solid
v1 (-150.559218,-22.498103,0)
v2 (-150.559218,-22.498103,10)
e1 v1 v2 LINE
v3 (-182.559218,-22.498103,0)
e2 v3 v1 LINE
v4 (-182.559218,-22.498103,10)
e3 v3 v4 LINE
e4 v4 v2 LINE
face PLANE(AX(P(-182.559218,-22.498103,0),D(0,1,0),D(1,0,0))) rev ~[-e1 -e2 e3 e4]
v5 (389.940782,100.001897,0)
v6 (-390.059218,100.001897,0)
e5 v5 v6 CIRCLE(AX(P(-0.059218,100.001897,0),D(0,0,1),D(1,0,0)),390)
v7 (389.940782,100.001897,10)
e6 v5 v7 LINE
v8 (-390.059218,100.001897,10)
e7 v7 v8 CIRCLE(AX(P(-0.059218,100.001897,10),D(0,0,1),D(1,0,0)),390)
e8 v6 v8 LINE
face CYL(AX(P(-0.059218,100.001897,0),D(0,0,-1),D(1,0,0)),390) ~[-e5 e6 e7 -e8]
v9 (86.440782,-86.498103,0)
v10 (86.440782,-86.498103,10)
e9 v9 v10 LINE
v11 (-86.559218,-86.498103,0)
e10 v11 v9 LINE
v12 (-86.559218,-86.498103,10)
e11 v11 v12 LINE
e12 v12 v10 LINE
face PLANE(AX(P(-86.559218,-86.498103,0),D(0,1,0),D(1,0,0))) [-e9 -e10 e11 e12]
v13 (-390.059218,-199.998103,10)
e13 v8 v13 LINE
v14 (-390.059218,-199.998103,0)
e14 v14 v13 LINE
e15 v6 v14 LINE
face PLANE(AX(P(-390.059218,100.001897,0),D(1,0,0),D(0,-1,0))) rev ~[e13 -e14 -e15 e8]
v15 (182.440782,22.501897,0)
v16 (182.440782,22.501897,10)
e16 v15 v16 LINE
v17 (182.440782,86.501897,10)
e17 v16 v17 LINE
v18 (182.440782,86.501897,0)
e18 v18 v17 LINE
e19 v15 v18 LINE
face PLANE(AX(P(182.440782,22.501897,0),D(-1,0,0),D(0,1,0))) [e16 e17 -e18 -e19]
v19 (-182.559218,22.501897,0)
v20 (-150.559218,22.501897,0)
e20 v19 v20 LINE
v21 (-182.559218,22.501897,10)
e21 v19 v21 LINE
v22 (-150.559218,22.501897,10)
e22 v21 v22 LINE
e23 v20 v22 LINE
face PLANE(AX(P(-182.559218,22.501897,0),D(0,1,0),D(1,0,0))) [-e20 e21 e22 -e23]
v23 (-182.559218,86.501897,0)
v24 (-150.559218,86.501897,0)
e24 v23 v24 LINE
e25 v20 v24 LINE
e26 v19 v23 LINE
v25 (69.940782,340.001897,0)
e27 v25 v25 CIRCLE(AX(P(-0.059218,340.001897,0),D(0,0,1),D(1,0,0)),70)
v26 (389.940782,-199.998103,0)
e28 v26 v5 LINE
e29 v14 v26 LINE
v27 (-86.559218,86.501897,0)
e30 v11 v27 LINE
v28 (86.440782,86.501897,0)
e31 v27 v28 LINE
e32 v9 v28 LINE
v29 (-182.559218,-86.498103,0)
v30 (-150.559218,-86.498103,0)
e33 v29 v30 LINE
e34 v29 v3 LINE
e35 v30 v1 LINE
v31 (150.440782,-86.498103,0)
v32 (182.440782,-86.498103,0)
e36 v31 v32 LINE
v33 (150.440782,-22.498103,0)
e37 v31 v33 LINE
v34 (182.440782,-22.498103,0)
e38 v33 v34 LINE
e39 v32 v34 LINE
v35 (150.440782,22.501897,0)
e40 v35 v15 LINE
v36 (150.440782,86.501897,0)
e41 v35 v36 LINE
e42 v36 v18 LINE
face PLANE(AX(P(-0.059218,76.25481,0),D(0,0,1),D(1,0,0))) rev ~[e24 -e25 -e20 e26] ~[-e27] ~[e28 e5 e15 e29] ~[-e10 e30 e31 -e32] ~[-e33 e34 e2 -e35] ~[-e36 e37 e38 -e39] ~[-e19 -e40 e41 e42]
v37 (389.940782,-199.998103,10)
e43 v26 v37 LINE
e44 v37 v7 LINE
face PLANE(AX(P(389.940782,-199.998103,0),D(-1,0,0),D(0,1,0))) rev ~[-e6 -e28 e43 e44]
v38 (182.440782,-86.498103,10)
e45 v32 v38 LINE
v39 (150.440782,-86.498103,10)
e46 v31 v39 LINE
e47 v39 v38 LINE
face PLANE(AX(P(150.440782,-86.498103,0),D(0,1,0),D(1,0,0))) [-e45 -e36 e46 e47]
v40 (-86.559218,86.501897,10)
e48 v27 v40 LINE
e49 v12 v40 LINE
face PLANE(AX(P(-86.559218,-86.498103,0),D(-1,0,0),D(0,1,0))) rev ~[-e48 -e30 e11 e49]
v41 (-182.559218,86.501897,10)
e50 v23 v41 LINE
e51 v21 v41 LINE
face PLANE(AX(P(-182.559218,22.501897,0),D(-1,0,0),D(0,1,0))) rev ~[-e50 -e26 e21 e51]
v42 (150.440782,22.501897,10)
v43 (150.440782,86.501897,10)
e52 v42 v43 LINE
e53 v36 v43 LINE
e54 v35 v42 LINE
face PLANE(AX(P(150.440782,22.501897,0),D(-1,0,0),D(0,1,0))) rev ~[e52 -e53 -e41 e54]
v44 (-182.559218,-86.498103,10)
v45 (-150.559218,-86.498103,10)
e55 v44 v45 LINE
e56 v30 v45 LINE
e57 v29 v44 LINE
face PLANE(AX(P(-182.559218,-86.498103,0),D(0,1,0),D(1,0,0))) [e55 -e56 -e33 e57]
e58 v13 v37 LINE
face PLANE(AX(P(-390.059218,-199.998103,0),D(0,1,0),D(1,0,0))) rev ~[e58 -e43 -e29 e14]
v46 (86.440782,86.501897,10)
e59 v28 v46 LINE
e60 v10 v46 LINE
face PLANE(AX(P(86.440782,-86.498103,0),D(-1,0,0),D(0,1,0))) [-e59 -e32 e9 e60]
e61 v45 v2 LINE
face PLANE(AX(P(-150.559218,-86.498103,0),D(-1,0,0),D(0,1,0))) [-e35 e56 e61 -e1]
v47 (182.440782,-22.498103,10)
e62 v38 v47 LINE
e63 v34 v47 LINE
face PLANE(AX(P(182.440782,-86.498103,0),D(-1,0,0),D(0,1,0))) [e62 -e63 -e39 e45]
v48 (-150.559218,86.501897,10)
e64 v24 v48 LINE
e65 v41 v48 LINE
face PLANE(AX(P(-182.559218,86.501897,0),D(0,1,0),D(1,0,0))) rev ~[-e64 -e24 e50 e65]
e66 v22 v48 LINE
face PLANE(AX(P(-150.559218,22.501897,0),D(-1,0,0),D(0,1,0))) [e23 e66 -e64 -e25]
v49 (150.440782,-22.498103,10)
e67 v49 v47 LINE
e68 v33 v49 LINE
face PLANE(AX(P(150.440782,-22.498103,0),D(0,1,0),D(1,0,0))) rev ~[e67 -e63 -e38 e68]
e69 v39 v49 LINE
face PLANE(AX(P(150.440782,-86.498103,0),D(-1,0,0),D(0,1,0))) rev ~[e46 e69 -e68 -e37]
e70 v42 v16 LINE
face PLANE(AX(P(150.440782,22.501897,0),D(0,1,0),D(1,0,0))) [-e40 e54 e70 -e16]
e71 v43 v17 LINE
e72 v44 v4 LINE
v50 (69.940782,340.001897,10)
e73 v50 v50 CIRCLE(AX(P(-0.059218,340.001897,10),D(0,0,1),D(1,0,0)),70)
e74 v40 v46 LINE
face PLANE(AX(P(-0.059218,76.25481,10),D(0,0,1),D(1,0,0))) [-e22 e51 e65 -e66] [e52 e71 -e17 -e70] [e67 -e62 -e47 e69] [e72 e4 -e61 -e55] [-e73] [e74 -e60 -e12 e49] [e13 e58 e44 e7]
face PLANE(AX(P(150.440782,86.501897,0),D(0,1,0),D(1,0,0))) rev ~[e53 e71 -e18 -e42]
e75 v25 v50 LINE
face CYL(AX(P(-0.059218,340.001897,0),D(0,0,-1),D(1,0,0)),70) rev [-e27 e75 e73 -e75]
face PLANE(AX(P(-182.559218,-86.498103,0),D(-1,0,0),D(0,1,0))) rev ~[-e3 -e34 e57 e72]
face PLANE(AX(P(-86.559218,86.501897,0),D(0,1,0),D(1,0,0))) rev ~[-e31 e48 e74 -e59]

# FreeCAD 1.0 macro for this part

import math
import FreeCAD as App
import Part
import Sketcher


def add_polygon(sketch, points):
    """Adds a closed chain of lines whose ends are joined by coincident constraints."""
    first, n = sketch.GeometryCount, len(points)
    for a, b in zip(points, points[1:] + points[:1]):
        sketch.addGeometry(Part.LineSegment(App.Vector(*a, 0), App.Vector(*b, 0)), False)
    for i in range(n):
        sketch.addConstraint(Sketcher.Constraint("Coincident", first + i, 2, first + (i + 1) % n, 1))

doc = App.newDocument("Part")
body = doc.addObject("PartDesign::Body", "Body")

# Sketch on XY plane
sketch1 = body.newObject("Sketcher::SketchObject", "Sketch")
sketch1.AttachmentSupport = (doc.getObject("XY_Plane"), [""])
sketch1.MapMode = "FlatFace"
sketch1.addGeometry(Part.LineSegment(App.Vector(-390, 100, 0), App.Vector(-390, -200, 0)), False)  # 0
sketch1.addGeometry(Part.LineSegment(App.Vector(-390, -200, 0), App.Vector(390, -200, 0)), False)  # 1
sketch1.addGeometry(Part.LineSegment(App.Vector(390, -200, 0), App.Vector(390, 100, 0)), False)  # 2
sketch1.addGeometry(Part.ArcOfCircle(Part.Circle(App.Vector(0, 100, 0), App.Vector(0, 0, 1), 390), math.radians(0), math.radians(180)), False)  # 3
add_polygon(sketch1, [(-151, -86), (-183, -86), (-183, -22), (-151, -22)])  # lines 4-7
add_polygon(sketch1, [(-151, 23), (-183, 23), (-183, 87), (-151, 87)])  # lines 8-11
add_polygon(sketch1, [(86, -86), (-87, -86), (-87, 87), (86, 87)])  # lines 12-15
add_polygon(sketch1, [(182, -86), (150, -86), (150, -22), (182, -22)])  # lines 16-19
add_polygon(sketch1, [(182, 23), (150, 23), (150, 87), (182, 87)])  # lines 20-23
sketch1.addGeometry(Part.Circle(App.Vector(0, 340, 0), App.Vector(0, 0, 1), 70), False)  # 24
sketch1.addConstraint([
    Sketcher.Constraint("Coincident", 0, 2, 1, 1),
    Sketcher.Constraint("Coincident", 1, 2, 2, 1),
    Sketcher.Constraint("Tangent", 2, 2, 3, 1),
    Sketcher.Constraint("Tangent", 3, 2, 0, 1),
    Sketcher.Constraint("Vertical", 0),
    Sketcher.Constraint("Horizontal", 1),
    Sketcher.Constraint("Vertical", 2),
    Sketcher.Constraint("Horizontal", 4),
    Sketcher.Constraint("Vertical", 5),
    Sketcher.Constraint("Horizontal", 6),
    Sketcher.Constraint("Vertical", 7),
    Sketcher.Constraint("Horizontal", 8),
    Sketcher.Constraint("Vertical", 9),
    Sketcher.Constraint("Horizontal", 10),
    Sketcher.Constraint("Vertical", 11),
    Sketcher.Constraint("Horizontal", 12),
    Sketcher.Constraint("Vertical", 13),
    Sketcher.Constraint("Horizontal", 14),
    Sketcher.Constraint("Vertical", 15),
    Sketcher.Constraint("Horizontal", 16),
    Sketcher.Constraint("Vertical", 17),
    Sketcher.Constraint("Horizontal", 18),
    Sketcher.Constraint("Vertical", 19),
    Sketcher.Constraint("Horizontal", 20),
    Sketcher.Constraint("Vertical", 21),
    Sketcher.Constraint("Horizontal", 22),
    Sketcher.Constraint("Vertical", 23),
    Sketcher.Constraint("Horizontal", 7, 2, 12, 2),
    Sketcher.Constraint("Horizontal", 10, 2, 13, 2),
    Sketcher.Constraint("Horizontal", 15, 2, 16, 2),
    Sketcher.Constraint("Horizontal", 6, 2, 17, 2),
    Sketcher.Constraint("Horizontal", 11, 2, 20, 2),
    Sketcher.Constraint("Horizontal", 14, 2, 21, 2),
    Sketcher.Constraint("Vertical", 3, 3, 24, 3),
    Sketcher.Constraint("Vertical", 5, 2, 8, 2),
    Sketcher.Constraint("Vertical", 7, 2, 10, 2),
    Sketcher.Constraint("Vertical", 17, 2, 20, 2),
    Sketcher.Constraint("Vertical", 19, 2, 22, 2),
    Sketcher.Constraint("Equal", 10, 16),
    Sketcher.Constraint("Equal", 7, 9),
    Sketcher.Constraint("Equal", 14, 13),
    Sketcher.Constraint("Diameter", 24, 140.0),
    Sketcher.Constraint("Radius", 3, 390.0),
    Sketcher.Constraint("DistanceX", 4, 2, 4, 1, 32.0),
    Sketcher.Constraint("DistanceX", 12, 2, 12, 1, 173.0),
    Sketcher.Constraint("DistanceY", 0, 2, 0, 1, 300.0),
    Sketcher.Constraint("DistanceY", 5, 1, 5, 2, 64.0),
    Sketcher.Constraint("DistanceY", 3, 3, 24, 3, 240.0),
    Sketcher.Constraint("DistanceX", 7, 2, 12, 2, 64.0),
    Sketcher.Constraint("DistanceX", 15, 2, 16, 2, 64.0),
    Sketcher.Constraint("DistanceX", 0, 2, 4, 2, 207.5),
    Sketcher.Constraint("DistanceY", 0, 2, 4, 2, 113.5),
    Sketcher.Constraint("DistanceX", 0, 2, -1, 1, 390.059218),
    Sketcher.Constraint("DistanceY", -1, 1, 3, 3, 100.001897),
])
pad1 = body.newObject("PartDesign::Pad", "Pad")
pad1.Profile = sketch1
pad1.Length = 10

doc.recompute()
